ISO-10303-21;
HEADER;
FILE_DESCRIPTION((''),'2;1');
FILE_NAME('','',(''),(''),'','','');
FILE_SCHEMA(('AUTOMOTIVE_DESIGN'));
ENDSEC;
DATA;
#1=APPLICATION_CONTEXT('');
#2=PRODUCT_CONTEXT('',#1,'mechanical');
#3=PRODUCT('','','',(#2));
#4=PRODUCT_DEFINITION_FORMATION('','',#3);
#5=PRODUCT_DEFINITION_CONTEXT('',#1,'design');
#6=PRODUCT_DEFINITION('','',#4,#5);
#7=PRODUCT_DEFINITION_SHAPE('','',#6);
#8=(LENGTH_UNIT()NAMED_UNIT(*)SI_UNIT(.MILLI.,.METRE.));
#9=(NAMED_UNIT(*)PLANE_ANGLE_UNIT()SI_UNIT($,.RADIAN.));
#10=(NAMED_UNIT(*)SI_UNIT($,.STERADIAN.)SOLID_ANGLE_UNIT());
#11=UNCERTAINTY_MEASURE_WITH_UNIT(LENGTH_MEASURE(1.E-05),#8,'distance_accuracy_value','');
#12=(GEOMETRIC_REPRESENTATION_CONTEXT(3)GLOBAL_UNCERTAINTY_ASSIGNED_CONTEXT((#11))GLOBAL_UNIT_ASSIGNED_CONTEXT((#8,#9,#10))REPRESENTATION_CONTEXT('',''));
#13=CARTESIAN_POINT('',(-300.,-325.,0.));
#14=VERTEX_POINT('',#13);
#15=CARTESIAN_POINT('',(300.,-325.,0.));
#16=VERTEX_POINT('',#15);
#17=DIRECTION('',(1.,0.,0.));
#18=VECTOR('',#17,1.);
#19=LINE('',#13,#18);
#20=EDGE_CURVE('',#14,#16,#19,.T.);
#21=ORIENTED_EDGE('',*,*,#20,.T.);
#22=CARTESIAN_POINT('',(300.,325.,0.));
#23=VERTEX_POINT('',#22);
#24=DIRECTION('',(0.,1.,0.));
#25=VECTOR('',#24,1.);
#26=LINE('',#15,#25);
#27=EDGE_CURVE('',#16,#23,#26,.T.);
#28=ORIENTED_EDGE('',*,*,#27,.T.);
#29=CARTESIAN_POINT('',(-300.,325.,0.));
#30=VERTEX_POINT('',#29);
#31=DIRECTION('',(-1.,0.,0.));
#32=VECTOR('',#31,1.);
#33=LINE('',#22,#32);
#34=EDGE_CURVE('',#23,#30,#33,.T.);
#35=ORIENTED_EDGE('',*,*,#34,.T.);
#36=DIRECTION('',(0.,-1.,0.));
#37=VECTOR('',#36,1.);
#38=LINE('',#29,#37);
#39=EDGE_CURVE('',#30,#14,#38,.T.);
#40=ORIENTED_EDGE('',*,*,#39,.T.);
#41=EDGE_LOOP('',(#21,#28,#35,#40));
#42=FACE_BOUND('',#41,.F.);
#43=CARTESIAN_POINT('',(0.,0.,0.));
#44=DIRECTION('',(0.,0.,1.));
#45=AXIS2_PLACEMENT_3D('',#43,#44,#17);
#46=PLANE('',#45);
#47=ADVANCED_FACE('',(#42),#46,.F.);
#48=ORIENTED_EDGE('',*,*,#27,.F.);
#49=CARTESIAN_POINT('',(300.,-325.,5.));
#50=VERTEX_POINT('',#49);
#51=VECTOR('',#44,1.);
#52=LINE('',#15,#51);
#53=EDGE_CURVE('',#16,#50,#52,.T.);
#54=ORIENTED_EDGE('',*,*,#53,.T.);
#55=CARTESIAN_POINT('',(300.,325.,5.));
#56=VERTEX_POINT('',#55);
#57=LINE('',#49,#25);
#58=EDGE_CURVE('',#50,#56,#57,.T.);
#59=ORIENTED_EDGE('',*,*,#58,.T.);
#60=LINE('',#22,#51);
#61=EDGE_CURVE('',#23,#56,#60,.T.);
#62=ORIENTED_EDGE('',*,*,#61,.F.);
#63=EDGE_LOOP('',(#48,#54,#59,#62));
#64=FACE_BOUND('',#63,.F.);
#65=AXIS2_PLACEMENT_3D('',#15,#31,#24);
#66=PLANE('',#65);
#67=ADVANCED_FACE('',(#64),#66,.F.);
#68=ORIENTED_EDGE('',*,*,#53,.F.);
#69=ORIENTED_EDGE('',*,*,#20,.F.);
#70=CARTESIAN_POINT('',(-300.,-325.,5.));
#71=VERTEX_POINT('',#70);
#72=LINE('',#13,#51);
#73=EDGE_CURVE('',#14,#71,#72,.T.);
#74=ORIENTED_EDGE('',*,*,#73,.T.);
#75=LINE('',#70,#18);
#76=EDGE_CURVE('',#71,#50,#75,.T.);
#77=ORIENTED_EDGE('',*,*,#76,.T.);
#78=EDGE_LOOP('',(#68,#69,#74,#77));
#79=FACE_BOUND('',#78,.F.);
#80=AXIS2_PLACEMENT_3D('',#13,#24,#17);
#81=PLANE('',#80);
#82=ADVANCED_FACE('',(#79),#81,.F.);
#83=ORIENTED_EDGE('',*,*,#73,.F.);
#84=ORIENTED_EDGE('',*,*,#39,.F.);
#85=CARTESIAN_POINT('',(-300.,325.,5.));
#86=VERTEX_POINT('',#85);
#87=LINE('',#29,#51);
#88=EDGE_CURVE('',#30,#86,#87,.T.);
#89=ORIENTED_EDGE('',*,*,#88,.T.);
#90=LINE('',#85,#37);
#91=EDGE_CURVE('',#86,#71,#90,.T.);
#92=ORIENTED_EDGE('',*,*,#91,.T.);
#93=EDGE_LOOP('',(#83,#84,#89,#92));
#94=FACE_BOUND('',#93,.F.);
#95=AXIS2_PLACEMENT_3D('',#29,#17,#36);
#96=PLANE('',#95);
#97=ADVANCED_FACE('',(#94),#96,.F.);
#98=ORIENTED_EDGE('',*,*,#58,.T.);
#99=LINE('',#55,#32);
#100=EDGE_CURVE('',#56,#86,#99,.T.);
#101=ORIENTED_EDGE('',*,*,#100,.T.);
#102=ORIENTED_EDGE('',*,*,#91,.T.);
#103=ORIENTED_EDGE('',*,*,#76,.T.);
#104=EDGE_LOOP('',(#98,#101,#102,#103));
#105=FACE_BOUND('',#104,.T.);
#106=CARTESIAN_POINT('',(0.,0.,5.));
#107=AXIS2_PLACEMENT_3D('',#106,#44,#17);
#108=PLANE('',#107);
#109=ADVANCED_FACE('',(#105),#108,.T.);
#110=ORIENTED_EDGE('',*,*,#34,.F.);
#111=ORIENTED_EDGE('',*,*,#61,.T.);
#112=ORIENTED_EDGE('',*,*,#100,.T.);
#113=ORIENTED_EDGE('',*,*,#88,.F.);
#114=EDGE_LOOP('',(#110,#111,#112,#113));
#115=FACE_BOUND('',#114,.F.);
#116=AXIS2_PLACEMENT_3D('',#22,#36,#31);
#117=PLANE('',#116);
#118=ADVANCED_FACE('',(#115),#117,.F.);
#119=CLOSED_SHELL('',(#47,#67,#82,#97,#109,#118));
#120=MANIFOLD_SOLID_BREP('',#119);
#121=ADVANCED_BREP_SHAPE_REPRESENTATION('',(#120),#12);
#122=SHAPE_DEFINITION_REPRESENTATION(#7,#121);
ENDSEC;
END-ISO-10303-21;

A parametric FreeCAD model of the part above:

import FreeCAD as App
import Part
import Sketcher

V = App.Vector


def add_polygon(sketch, points):
    """Adds a closed chain of lines whose ends are joined by coincident constraints."""
    first, n = sketch.GeometryCount, len(points)
    for a, b in zip(points, points[1:] + points[:1]):
        sketch.addGeometry(Part.LineSegment(App.Vector(*a, 0), App.Vector(*b, 0)), False)
    for i in range(n):
        sketch.addConstraint(Sketcher.Constraint("Coincident", first + i, 2, first + (i + 1) % n, 1))

doc = App.newDocument("Part")
body = doc.addObject("PartDesign::Body", "Body")

# Sketch on XY plane
sketch1 = body.newObject("Sketcher::SketchObject", "Sketch")
sketch1.AttachmentSupport = (doc.getObject("XY_Plane"), [""])
sketch1.MapMode = "FlatFace"
add_polygon(sketch1, [(-300, 325), (-300, -325), (300, -325), (300, 325)])  # lines 0-3
sketch1.addConstraint(Sketcher.Constraint("Vertical", 0))
sketch1.addConstraint(Sketcher.Constraint("Horizontal", 1))
sketch1.addConstraint(Sketcher.Constraint("Vertical", 2))
sketch1.addConstraint(Sketcher.Constraint("Horizontal", 3))
sketch1.addConstraint(Sketcher.Constraint("Symmetric", 0, 2, 2, 2, -1, 1))
sketch1.addConstraint(Sketcher.Constraint("DistanceX", 1, 1, 1, 2, 600.0))
sketch1.addConstraint(Sketcher.Constraint("DistanceY", 0, 2, 0, 1, 650.0))
pad1 = body.newObject("PartDesign::Pad", "Pad")
pad1.Profile = sketch1
pad1.Length = 5

doc.recompute()
